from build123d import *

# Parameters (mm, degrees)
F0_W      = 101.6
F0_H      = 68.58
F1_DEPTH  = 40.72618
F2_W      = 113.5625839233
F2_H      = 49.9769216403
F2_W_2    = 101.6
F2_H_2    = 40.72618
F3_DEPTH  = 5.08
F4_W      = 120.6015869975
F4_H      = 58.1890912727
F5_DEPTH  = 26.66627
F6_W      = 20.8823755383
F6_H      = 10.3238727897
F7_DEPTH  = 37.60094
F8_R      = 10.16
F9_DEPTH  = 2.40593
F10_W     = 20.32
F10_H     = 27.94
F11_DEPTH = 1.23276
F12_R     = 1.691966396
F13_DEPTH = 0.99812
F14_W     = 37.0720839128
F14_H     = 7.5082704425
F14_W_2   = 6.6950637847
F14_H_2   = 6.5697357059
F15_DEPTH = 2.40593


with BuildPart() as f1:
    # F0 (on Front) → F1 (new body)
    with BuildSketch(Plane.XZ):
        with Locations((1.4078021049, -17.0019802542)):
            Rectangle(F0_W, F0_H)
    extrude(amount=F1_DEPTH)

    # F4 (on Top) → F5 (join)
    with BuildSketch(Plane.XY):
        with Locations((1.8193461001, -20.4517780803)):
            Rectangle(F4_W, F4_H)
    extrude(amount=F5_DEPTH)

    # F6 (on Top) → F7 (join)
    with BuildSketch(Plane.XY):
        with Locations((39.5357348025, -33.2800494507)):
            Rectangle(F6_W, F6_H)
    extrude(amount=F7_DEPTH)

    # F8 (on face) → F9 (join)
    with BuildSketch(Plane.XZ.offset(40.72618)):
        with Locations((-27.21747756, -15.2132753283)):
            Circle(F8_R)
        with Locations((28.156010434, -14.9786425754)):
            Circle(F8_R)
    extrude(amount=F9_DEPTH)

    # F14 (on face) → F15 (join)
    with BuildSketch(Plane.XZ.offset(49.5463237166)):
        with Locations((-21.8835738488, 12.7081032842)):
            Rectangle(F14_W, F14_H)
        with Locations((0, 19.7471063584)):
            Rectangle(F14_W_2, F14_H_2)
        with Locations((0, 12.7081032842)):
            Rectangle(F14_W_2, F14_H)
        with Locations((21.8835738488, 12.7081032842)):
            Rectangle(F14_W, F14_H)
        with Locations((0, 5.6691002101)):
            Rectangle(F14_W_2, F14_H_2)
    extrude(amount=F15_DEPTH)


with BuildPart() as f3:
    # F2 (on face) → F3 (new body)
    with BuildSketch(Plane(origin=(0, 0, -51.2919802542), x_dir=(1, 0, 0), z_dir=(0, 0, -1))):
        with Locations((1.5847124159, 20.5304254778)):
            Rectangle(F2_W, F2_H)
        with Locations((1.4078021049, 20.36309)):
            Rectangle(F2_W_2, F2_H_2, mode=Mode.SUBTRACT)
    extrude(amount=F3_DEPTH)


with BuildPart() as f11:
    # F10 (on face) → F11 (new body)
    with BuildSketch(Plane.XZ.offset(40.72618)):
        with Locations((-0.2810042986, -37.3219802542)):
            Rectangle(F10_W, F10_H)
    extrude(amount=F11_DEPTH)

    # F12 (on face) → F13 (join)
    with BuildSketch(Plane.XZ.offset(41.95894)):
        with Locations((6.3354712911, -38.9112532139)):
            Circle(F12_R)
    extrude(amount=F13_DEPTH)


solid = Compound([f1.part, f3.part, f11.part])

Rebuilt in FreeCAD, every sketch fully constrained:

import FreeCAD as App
import Part
import Sketcher
Q = App.Units.Quantity

doc = App.newDocument("Part")
body = doc.addObject("PartDesign::Body", "Body")

# Sketch on XZ plane
sketch1 = doc.addObject("Sketcher::SketchObject", "Sketch")
body.addObject(sketch1)
sketch1.AttachmentSupport = (doc.XZ_Plane, [""])
sketch1.MapMode = "FlatFace"
sketch1.addGeometry([
    Part.LineSegment(App.Vector(-49, 17, 0), App.Vector(-49, -51, 0)),
    Part.LineSegment(App.Vector(-49, -51, 0), App.Vector(52, -51, 0)),
    Part.LineSegment(App.Vector(52, -51, 0), App.Vector(52, 17, 0)),
    Part.LineSegment(App.Vector(52, 17, 0), App.Vector(-49, 17, 0)),
], False)
sketch1.addConstraint([
    Sketcher.Constraint("Coincident", 0, 2, 1, 1),
    Sketcher.Constraint("Coincident", 1, 2, 2, 1),
    Sketcher.Constraint("Coincident", 2, 2, 3, 1),
    Sketcher.Constraint("Coincident", 3, 2, 0, 1),
    Sketcher.Constraint("Vertical", 0),
    Sketcher.Constraint("Horizontal", 1),
    Sketcher.Constraint("Vertical", 2),
    Sketcher.Constraint("Horizontal", 3),
    Sketcher.Constraint("DistanceX", 1, 1, 1, 2, Q("4 in")),
    Sketcher.Constraint("DistanceY", 0, 2, 0, 1, Q("2.7 in")),
    Sketcher.Constraint("DistanceY", 0, 2, -1, 1, Q("51.29198 mm")),
    Sketcher.Constraint("DistanceX", 0, 2, -1, 1, Q("49.392198 mm")),
])
pad1 = doc.addObject("PartDesign::Pad", "Pad")
body.addObject(pad1)
pad1.Profile = sketch1
pad1.Length = 40.72618

# Sketch on XY plane
sketch2 = doc.addObject("Sketcher::SketchObject", "Sketch001")
body.addObject(sketch2)
sketch2.AttachmentSupport = (doc.XY_Plane, [""])
sketch2.MapMode = "FlatFace"
sketch2.addGeometry([
    Part.LineSegment(App.Vector(-58, 9, 0), App.Vector(-58, -50, 0)),
    Part.LineSegment(App.Vector(-58, -50, 0), App.Vector(62, -50, 0)),
    Part.LineSegment(App.Vector(62, -50, 0), App.Vector(62, 9, 0)),
    Part.LineSegment(App.Vector(62, 9, 0), App.Vector(-58, 9, 0)),
], False)
sketch2.addConstraint([
    Sketcher.Constraint("Coincident", 0, 2, 1, 1),
    Sketcher.Constraint("Coincident", 1, 2, 2, 1),
    Sketcher.Constraint("Coincident", 2, 2, 3, 1),
    Sketcher.Constraint("Coincident", 3, 2, 0, 1),
    Sketcher.Constraint("Vertical", 0),
    Sketcher.Constraint("Horizontal", 1),
    Sketcher.Constraint("Vertical", 2),
    Sketcher.Constraint("Horizontal", 3),
    Sketcher.Constraint("DistanceY", 0, 2, 0, 1, Q("58.189091 mm")),
    Sketcher.Constraint("DistanceX", 1, 1, 1, 2, Q("120.601587 mm")),
    Sketcher.Constraint("DistanceX", -1, 1, 1, 2, Q("62.12014 mm")),
    Sketcher.Constraint("DistanceY", 0, 2, -1, 1, Q("49.546324 mm")),
])
pad2 = doc.addObject("PartDesign::Pad", "Pad001")
body.addObject(pad2)
pad2.Profile = sketch2
pad2.Length = 26.66627

# Sketch on XY plane
sketch3 = doc.addObject("Sketcher::SketchObject", "Sketch002")
body.addObject(sketch3)
sketch3.AttachmentSupport = (doc.XY_Plane, [""])
sketch3.MapMode = "FlatFace"
sketch3.addGeometry([
    Part.LineSegment(App.Vector(29, -28, 0), App.Vector(29, -38, 0)),
    Part.LineSegment(App.Vector(29, -38, 0), App.Vector(50, -38, 0)),
    Part.LineSegment(App.Vector(50, -38, 0), App.Vector(50, -28, 0)),
    Part.LineSegment(App.Vector(50, -28, 0), App.Vector(29, -28, 0)),
], False)
sketch3.addConstraint([
    Sketcher.Constraint("Coincident", 0, 2, 1, 1),
    Sketcher.Constraint("Coincident", 1, 2, 2, 1),
    Sketcher.Constraint("Coincident", 2, 2, 3, 1),
    Sketcher.Constraint("Coincident", 3, 2, 0, 1),
    Sketcher.Constraint("Vertical", 0),
    Sketcher.Constraint("Horizontal", 1),
    Sketcher.Constraint("Vertical", 2),
    Sketcher.Constraint("Horizontal", 3),
    Sketcher.Constraint("DistanceX", 1, 1, 1, 2, Q("20.882376 mm")),
    Sketcher.Constraint("DistanceY", 0, 2, 0, 1, Q("10.323873 mm")),
    Sketcher.Constraint("DistanceX", -1, 1, 0, 2, Q("29.094547 mm")),
    Sketcher.Constraint("DistanceY", 0, 2, -1, 1, Q("38.441986 mm")),
])
pad3 = doc.addObject("PartDesign::Pad", "Pad002")
body.addObject(pad3)
pad3.Profile = sketch3
pad3.Length = 37.60094

# Sketch on XZ plane
sketch4 = doc.addObject("Sketcher::SketchObject", "Sketch003")
body.addObject(sketch4)
sketch4.AttachmentSupport = (doc.XZ_Plane, [""])
sketch4.MapMode = "FlatFace"
sketch4.AttachmentOffset = App.Placement(App.Vector(0, 0, 40.72618), App.Rotation())
sketch4.addGeometry([
    Part.Circle(App.Vector(-27, -15, 0), App.Vector(0, 0, 1), 10),
    Part.Circle(App.Vector(28, -15, 0), App.Vector(0, 0, 1), 10),
], False)
sketch4.addConstraint([
    Sketcher.Constraint("Equal", 0, 1),
    Sketcher.Constraint("Diameter", 0, Q("0.8 in")),
    Sketcher.Constraint("DistanceX", -1, 1, 1, 3, Q("28.15601 mm")),
    Sketcher.Constraint("DistanceX", 0, 3, -1, 1, Q("27.217478 mm")),
    Sketcher.Constraint("DistanceY", 0, 3, -1, 1, Q("15.213275 mm")),
    Sketcher.Constraint("DistanceY", 1, 3, -1, 1, Q("14.978643 mm")),
])
pad4 = doc.addObject("PartDesign::Pad", "Pad003")
body.addObject(pad4)
pad4.Profile = sketch4
pad4.Length = 2.40593

# Sketch on XZ plane
sketch5 = doc.addObject("Sketcher::SketchObject", "Sketch004")
body.addObject(sketch5)
sketch5.AttachmentSupport = (doc.XZ_Plane, [""])
sketch5.MapMode = "FlatFace"
sketch5.AttachmentOffset = App.Placement(App.Vector(0, 0, 49.546324), App.Rotation())
sketch5.addGeometry([
    Part.LineSegment(App.Vector(-40, 16, 0), App.Vector(-40, 9, 0)),  # 0
    Part.LineSegment(App.Vector(-40, 9, 0), App.Vector(-3, 9, 0)),  # 1
    Part.LineSegment(App.Vector(-3, 9, 0), App.Vector(-3, 2, 0)),  # 2
    Part.LineSegment(App.Vector(-3, 2, 0), App.Vector(3, 2, 0)),  # 3
    Part.LineSegment(App.Vector(3, 2, 0), App.Vector(3, 9, 0)),  # 4
    Part.LineSegment(App.Vector(3, 9, 0), App.Vector(40, 9, 0)),  # 5
    Part.LineSegment(App.Vector(40, 9, 0), App.Vector(40, 16, 0)),  # 6
    Part.LineSegment(App.Vector(40, 16, 0), App.Vector(3, 16, 0)),  # 7
    Part.LineSegment(App.Vector(3, 16, 0), App.Vector(3, 23, 0)),  # 8
    Part.LineSegment(App.Vector(3, 23, 0), App.Vector(-3, 23, 0)),  # 9
    Part.LineSegment(App.Vector(-3, 23, 0), App.Vector(-3, 16, 0)),  # 10
    Part.LineSegment(App.Vector(-3, 16, 0), App.Vector(-40, 16, 0)),  # 11
], False)
sketch5.addConstraint([
    Sketcher.Constraint("Coincident", 0, 2, 1, 1),
    Sketcher.Constraint("Coincident", 1, 2, 2, 1),
    Sketcher.Constraint("Coincident", 2, 2, 3, 1),
    Sketcher.Constraint("Coincident", 3, 2, 4, 1),
    Sketcher.Constraint("Coincident", 4, 2, 5, 1),
    Sketcher.Constraint("Coincident", 5, 2, 6, 1),
    Sketcher.Constraint("Coincident", 6, 2, 7, 1),
    Sketcher.Constraint("Coincident", 7, 2, 8, 1),
    Sketcher.Constraint("Coincident", 8, 2, 9, 1),
    Sketcher.Constraint("Coincident", 9, 2, 10, 1),
    Sketcher.Constraint("Coincident", 10, 2, 11, 1),
    Sketcher.Constraint("Coincident", 11, 2, 0, 1),
    Sketcher.Constraint("Vertical", 0),
    Sketcher.Constraint("Horizontal", 1),
    Sketcher.Constraint("Vertical", 2),
    Sketcher.Constraint("Horizontal", 3),
    Sketcher.Constraint("Vertical", 4),
    Sketcher.Constraint("Horizontal", 5),
    Sketcher.Constraint("Vertical", 6),
    Sketcher.Constraint("Horizontal", 7),
    Sketcher.Constraint("Vertical", 8),
    Sketcher.Constraint("Horizontal", 9),
    Sketcher.Constraint("Vertical", 10),
    Sketcher.Constraint("Horizontal", 11),
    Sketcher.Constraint("Symmetric", 1, 2, 4, 2, -2),
    Sketcher.Constraint("Symmetric", 7, 2, 10, 2, -2),
    Sketcher.Constraint("Vertical", 4, 2, 7, 2),
    Sketcher.Constraint("Equal", 1, 5),
    Sketcher.Constraint("Equal", 4, 8),
    Sketcher.Constraint("DistanceY", 0, 2, 0, 1, Q("7.50827 mm")),
    Sketcher.Constraint("DistanceX", 1, 1, 1, 2, Q("37.072084 mm")),
    Sketcher.Constraint("DistanceX", 3, 1, 3, 2, Q("6.695064 mm")),
    Sketcher.Constraint("DistanceY", 2, 2, 2, 1, Q("6.569736 mm")),
    Sketcher.Constraint("DistanceY", -1, 1, 0, 2, Q("8.953968 mm")),
])
pad5 = doc.addObject("PartDesign::Pad", "Pad004")
body.addObject(pad5)
pad5.Profile = sketch5
pad5.Length = 2.40593
body2 = doc.addObject("PartDesign::Body", "Body001")

# Sketch on XY plane
sketch6 = doc.addObject("Sketcher::SketchObject", "Sketch005")
body2.addObject(sketch6)
sketch6.AttachmentSupport = (doc.getObject("XY_Plane001"), [""])
sketch6.MapMode = "FlatFace"
sketch6.AttachmentOffset = App.Placement(App.Vector(0, 0, -51.29198), App.Rotation())
sketch6.addGeometry([
    Part.LineSegment(App.Vector(-55, -46, 0), App.Vector(-55, 4, 0)),  # 0
    Part.LineSegment(App.Vector(-55, 4, 0), App.Vector(58, 4, 0)),  # 1
    Part.LineSegment(App.Vector(58, 4, 0), App.Vector(58, -46, 0)),  # 2
    Part.LineSegment(App.Vector(58, -46, 0), App.Vector(-55, -46, 0)),  # 3
    Part.LineSegment(App.Vector(52, 0, 0), App.Vector(-49, 0, 0)),  # 4
    Part.LineSegment(App.Vector(-49, 0, 0), App.Vector(-49, -41, 0)),  # 5
    Part.LineSegment(App.Vector(-49, -41, 0), App.Vector(52, -41, 0)),  # 6
    Part.LineSegment(App.Vector(52, -41, 0), App.Vector(52, 0, 0)),  # 7
], False)
sketch6.addConstraint([
    Sketcher.Constraint("Coincident", 0, 2, 1, 1),
    Sketcher.Constraint("Coincident", 1, 2, 2, 1),
    Sketcher.Constraint("Coincident", 2, 2, 3, 1),
    Sketcher.Constraint("Coincident", 3, 2, 0, 1),
    Sketcher.Constraint("Coincident", 4, 2, 5, 1),
    Sketcher.Constraint("Coincident", 5, 2, 6, 1),
    Sketcher.Constraint("Coincident", 6, 2, 7, 1),
    Sketcher.Constraint("Coincident", 7, 2, 4, 1),
    Sketcher.Constraint("Vertical", 0),
    Sketcher.Constraint("Horizontal", 1),
    Sketcher.Constraint("Vertical", 2),
    Sketcher.Constraint("Horizontal", 3),
    Sketcher.Constraint("Horizontal", 4),
    Sketcher.Constraint("Vertical", 5),
    Sketcher.Constraint("Horizontal", 6),
    Sketcher.Constraint("Vertical", 7),
    Sketcher.Constraint("PointOnObject", 4, 2, -1),
    Sketcher.Constraint("DistanceX", 4, 2, 4, 1, Q("4 in")),
    Sketcher.Constraint("DistanceY", 0, 1, 0, 2, Q("49.976922 mm")),
    Sketcher.Constraint("DistanceY", 5, 2, 5, 1, Q("40.72618 mm")),
    Sketcher.Constraint("DistanceX", 1, 1, 1, 2, Q("113.562584 mm")),
    Sketcher.Constraint("DistanceX", 0, 2, -1, 1, Q("55.19658 mm")),
    Sketcher.Constraint("DistanceX", 0, 2, 4, 2, Q("5.804382 mm")),
    Sketcher.Constraint("DistanceY", -1, 1, 0, 2, Q("4.458035 mm")),
])
pad6 = doc.addObject("PartDesign::Pad", "Pad005")
body2.addObject(pad6)
pad6.Profile = sketch6
pad6.Length = Q("0.2 in")
pad6.Reversed = True
body3 = doc.addObject("PartDesign::Body", "Body002")

# Sketch on XZ plane
sketch7 = doc.addObject("Sketcher::SketchObject", "Sketch006")
body3.addObject(sketch7)
sketch7.AttachmentSupport = (doc.getObject("XZ_Plane002"), [""])
sketch7.MapMode = "FlatFace"
sketch7.AttachmentOffset = App.Placement(App.Vector(0, 0, 40.72618), App.Rotation())
sketch7.addGeometry([
    Part.LineSegment(App.Vector(-10, -23, 0), App.Vector(-10, -51, 0)),
    Part.LineSegment(App.Vector(-10, -51, 0), App.Vector(10, -51, 0)),
    Part.LineSegment(App.Vector(10, -51, 0), App.Vector(10, -23, 0)),
    Part.LineSegment(App.Vector(10, -23, 0), App.Vector(-10, -23, 0)),
], False)
sketch7.addConstraint([
    Sketcher.Constraint("Coincident", 0, 2, 1, 1),
    Sketcher.Constraint("Coincident", 1, 2, 2, 1),
    Sketcher.Constraint("Coincident", 2, 2, 3, 1),
    Sketcher.Constraint("Coincident", 3, 2, 0, 1),
    Sketcher.Constraint("Vertical", 0),
    Sketcher.Constraint("Horizontal", 1),
    Sketcher.Constraint("Vertical", 2),
    Sketcher.Constraint("Horizontal", 3),
    Sketcher.Constraint("DistanceX", 1, 1, 1, 2, Q("0.8 in")),
    Sketcher.Constraint("DistanceY", 0, 2, 0, 1, Q("1.1 in")),
    Sketcher.Constraint("DistanceY", 0, 2, -1, 1, Q("51.29198 mm")),
    Sketcher.Constraint("DistanceX", 0, 2, -1, 1, Q("10.441004 mm")),
])
pad7 = doc.addObject("PartDesign::Pad", "Pad006")
body3.addObject(pad7)
pad7.Profile = sketch7
pad7.Length = 1.23276

# Sketch on XZ plane
sketch8 = doc.addObject("Sketcher::SketchObject", "Sketch007")
body3.addObject(sketch8)
sketch8.AttachmentSupport = (doc.getObject("XZ_Plane002"), [""])
sketch8.MapMode = "FlatFace"
sketch8.AttachmentOffset = App.Placement(App.Vector(0, 0, 41.95894), App.Rotation())
sketch8.addGeometry(Part.Circle(App.Vector(6.3, -38.9, 0), App.Vector(0, 0, 1), 1.7), False)
sketch8.addConstraint([
    Sketcher.Constraint("Diameter", 0, Q("3.383933 mm")),
    Sketcher.Constraint("DistanceX", -1, 1, 0, 3, Q("6.335471 mm")),
    Sketcher.Constraint("DistanceY", 0, 3, -1, 1, Q("38.911253 mm")),
])
pad8 = doc.addObject("PartDesign::Pad", "Pad007")
body3.addObject(pad8)
pad8.Profile = sketch8
pad8.Length = 0.99812

doc.recompute()
